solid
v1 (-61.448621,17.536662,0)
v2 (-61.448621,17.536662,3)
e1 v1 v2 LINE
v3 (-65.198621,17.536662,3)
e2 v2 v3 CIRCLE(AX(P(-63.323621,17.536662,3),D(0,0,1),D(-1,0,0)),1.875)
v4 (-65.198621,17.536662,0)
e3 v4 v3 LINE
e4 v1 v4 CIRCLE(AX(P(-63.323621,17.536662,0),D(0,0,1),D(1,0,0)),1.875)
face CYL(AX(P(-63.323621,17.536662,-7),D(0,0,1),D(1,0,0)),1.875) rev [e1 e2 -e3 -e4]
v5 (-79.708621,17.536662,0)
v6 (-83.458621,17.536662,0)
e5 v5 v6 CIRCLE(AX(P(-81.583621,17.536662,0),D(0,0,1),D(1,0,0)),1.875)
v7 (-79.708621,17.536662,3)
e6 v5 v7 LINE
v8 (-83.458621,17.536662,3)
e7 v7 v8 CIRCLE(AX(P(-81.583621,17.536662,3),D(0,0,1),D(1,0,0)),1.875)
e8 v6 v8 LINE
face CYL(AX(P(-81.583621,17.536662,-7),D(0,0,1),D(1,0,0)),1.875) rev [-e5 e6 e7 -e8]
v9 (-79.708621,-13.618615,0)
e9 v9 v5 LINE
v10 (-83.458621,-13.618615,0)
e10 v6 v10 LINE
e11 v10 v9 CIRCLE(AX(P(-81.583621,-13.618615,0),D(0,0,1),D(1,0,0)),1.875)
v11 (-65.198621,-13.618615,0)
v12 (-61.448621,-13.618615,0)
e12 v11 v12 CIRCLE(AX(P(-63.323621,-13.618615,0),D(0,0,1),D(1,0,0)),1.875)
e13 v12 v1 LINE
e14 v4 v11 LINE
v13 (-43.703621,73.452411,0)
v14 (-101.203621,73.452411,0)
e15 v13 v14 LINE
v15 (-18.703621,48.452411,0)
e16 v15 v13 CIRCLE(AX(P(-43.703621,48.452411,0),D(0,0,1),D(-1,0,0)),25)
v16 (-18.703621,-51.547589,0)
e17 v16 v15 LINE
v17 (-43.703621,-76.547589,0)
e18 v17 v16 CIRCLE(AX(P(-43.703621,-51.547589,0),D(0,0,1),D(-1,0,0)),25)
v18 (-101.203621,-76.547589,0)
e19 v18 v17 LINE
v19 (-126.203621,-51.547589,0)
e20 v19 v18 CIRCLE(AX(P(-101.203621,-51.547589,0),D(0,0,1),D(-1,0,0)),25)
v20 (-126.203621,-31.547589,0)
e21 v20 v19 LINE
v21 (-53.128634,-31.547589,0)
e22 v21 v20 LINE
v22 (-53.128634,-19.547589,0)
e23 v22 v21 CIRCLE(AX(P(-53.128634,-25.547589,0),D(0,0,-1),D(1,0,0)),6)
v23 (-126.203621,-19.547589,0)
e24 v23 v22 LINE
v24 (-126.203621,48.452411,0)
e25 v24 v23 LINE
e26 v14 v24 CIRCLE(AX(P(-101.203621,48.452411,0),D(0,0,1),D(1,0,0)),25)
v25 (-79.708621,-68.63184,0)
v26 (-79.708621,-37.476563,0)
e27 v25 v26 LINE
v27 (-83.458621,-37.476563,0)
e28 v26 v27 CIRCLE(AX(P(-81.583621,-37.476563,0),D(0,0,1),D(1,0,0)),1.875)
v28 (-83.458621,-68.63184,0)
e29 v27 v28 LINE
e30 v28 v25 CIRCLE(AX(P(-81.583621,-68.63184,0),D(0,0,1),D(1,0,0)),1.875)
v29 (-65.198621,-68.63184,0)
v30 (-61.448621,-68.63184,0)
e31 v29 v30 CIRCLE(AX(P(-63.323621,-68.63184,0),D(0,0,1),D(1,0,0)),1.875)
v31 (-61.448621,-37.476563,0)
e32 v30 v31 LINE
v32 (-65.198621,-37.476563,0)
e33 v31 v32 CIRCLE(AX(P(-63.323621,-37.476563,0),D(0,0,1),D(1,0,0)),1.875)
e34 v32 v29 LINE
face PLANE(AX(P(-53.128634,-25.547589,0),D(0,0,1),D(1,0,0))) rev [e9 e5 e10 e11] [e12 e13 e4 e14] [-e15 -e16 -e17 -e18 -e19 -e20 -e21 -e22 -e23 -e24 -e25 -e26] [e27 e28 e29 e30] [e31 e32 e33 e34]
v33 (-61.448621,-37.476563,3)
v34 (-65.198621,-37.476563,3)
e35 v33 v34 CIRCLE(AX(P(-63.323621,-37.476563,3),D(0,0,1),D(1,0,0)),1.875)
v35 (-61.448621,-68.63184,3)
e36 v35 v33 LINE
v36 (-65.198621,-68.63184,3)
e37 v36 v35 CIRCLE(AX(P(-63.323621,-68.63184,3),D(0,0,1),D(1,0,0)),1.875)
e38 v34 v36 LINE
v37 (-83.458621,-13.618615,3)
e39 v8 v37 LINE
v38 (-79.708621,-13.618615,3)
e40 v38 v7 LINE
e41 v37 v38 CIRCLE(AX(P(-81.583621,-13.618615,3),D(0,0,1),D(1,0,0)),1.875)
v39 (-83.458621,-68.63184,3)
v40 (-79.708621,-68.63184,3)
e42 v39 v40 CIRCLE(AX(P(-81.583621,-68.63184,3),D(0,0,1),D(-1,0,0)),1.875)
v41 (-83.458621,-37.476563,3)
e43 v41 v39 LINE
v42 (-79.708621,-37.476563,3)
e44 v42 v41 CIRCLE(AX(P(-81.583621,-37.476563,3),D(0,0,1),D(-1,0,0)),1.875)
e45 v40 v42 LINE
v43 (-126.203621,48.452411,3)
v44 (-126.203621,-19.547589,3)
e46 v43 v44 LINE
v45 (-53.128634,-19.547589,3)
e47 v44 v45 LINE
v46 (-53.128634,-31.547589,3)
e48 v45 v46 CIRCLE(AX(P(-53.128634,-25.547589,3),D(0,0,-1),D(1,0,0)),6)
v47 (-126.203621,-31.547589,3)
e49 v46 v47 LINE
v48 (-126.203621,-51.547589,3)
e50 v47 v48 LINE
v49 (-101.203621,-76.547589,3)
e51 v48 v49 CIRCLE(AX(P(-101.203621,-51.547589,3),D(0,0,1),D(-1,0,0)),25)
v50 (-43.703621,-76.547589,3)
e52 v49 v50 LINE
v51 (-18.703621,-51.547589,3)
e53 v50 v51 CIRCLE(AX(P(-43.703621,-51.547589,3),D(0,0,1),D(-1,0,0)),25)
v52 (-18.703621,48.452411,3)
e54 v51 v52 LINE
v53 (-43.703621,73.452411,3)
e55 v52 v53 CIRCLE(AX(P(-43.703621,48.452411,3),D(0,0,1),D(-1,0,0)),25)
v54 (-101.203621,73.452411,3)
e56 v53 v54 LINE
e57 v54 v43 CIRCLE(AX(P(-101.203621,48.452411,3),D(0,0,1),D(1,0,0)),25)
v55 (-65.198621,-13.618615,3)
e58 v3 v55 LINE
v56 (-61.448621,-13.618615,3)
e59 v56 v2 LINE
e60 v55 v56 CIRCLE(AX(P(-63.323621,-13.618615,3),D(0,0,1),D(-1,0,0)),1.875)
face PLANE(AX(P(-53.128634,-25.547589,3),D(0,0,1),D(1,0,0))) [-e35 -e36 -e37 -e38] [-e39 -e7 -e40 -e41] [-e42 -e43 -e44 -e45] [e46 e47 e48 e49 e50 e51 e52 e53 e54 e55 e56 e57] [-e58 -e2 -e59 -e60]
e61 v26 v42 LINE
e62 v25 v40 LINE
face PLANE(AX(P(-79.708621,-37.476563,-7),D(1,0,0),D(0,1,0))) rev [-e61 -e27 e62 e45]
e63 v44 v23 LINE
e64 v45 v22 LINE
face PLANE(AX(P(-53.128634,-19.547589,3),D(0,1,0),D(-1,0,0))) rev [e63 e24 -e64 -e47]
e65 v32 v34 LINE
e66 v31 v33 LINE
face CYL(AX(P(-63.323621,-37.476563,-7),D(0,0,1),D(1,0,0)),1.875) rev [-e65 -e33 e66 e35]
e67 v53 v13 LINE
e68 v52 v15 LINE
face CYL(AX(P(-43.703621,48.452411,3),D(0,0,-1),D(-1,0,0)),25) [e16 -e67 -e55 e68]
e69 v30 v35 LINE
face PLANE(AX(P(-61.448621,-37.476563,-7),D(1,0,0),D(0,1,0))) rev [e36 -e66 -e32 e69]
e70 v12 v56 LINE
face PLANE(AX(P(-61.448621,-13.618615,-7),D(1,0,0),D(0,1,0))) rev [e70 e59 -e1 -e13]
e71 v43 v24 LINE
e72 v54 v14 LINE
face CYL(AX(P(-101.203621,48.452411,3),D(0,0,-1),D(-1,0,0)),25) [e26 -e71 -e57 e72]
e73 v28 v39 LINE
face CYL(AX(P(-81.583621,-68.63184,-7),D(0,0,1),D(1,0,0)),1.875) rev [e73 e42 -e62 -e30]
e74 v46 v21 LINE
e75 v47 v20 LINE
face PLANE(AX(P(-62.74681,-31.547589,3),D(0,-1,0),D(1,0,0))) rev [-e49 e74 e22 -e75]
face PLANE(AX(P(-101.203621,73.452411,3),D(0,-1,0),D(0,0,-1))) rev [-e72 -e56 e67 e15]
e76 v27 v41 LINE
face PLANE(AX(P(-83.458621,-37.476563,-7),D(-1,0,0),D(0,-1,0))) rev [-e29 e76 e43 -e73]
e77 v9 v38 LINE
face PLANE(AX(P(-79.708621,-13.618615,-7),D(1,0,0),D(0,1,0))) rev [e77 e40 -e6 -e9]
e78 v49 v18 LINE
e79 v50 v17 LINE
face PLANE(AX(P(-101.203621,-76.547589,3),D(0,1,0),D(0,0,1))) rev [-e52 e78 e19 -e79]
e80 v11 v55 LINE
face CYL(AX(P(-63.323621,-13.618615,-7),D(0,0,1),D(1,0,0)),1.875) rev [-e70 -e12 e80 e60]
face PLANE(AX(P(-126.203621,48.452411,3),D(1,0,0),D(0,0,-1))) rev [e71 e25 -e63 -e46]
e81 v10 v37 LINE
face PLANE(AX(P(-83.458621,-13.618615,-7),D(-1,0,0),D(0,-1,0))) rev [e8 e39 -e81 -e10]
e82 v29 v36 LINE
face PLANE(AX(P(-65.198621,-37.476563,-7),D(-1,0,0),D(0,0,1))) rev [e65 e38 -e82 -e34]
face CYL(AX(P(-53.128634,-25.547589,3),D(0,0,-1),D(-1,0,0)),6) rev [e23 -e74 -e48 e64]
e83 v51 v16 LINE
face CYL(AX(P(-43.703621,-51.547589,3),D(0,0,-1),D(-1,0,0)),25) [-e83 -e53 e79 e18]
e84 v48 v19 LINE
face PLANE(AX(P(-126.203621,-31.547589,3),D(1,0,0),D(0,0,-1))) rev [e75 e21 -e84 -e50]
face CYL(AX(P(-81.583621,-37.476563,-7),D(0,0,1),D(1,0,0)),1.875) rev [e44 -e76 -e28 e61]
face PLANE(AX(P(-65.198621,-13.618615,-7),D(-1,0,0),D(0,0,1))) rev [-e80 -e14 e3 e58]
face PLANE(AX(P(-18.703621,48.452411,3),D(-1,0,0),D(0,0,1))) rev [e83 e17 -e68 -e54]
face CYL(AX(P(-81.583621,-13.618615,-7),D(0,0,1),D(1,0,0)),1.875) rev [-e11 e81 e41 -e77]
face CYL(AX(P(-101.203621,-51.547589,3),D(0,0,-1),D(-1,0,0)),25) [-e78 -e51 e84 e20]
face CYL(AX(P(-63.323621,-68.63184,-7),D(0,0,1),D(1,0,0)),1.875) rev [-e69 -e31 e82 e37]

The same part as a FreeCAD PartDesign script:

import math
import FreeCAD as App
import Part
import Sketcher
from FreeCAD import Vector
Q = App.Units.Quantity

doc = App.newDocument("Part")
body = doc.addObject("PartDesign::Body", "Body")

# Sketch on XY plane
sketch1 = doc.addObject("Sketcher::SketchObject", "Sketch")
body.addObject(sketch1)
sketch1.AttachmentSupport = (doc.XY_Plane, [""])
sketch1.MapMode = "FlatFace"
sketch1.addGeometry([
    Part.LineSegment(Vector(-126, -20, 0), Vector(-53, -20, 0)),  # 0
    Part.ArcOfCircle(Part.Circle(Vector(-53, -26, 0), Vector(0, 0, 1), 6), math.radians(-90), math.radians(90)),  # 1
    Part.LineSegment(Vector(-53, -32, 0), Vector(-126, -32, 0)),  # 2
    Part.LineSegment(Vector(-126, -32, 0), Vector(-126, -52, 0)),  # 3
    Part.ArcOfCircle(Part.Circle(Vector(-101, -52, 0), Vector(0, 0, 1), 25), math.radians(-180), math.radians(-90)),  # 4
    Part.LineSegment(Vector(-101, -77, 0), Vector(-44, -77, 0)),  # 5
    Part.ArcOfCircle(Part.Circle(Vector(-44, -52, 0), Vector(0, 0, 1), 25), math.radians(-90), math.radians(0)),  # 6
    Part.LineSegment(Vector(-19, -52, 0), Vector(-19, 48, 0)),  # 7
    Part.ArcOfCircle(Part.Circle(Vector(-44, 48, 0), Vector(0, 0, 1), 25), math.radians(0), math.radians(90)),  # 8
    Part.LineSegment(Vector(-44, 73, 0), Vector(-101, 73, 0)),  # 9
    Part.ArcOfCircle(Part.Circle(Vector(-101, 48, 0), Vector(0, 0, 1), 25), math.radians(90), math.radians(180)),  # 10
    Part.LineSegment(Vector(-126, 48, 0), Vector(-126, -20, 0)),  # 11
], False)
sketch1.addConstraint([
    Sketcher.Constraint("Tangent", 0, 2, 1, 2),
    Sketcher.Constraint("Tangent", 1, 1, 2, 1),
    Sketcher.Constraint("Coincident", 2, 2, 3, 1),
    Sketcher.Constraint("Tangent", 3, 2, 4, 1),
    Sketcher.Constraint("Tangent", 4, 2, 5, 1),
    Sketcher.Constraint("Tangent", 5, 2, 6, 1),
    Sketcher.Constraint("Tangent", 6, 2, 7, 1),
    Sketcher.Constraint("Tangent", 7, 2, 8, 1),
    Sketcher.Constraint("Tangent", 8, 2, 9, 1),
    Sketcher.Constraint("Tangent", 9, 2, 10, 1),
    Sketcher.Constraint("Tangent", 10, 2, 11, 1),
    Sketcher.Constraint("Coincident", 11, 2, 0, 1),
    Sketcher.Constraint("Horizontal", 0),
    Sketcher.Constraint("Horizontal", 2),
    Sketcher.Constraint("Vertical", 3),
    Sketcher.Constraint("Horizontal", 5),
    Sketcher.Constraint("Vertical", 7),
    Sketcher.Constraint("Horizontal", 9),
    Sketcher.Constraint("Vertical", 11),
    Sketcher.Constraint("Equal", 4, 6),
    Sketcher.Constraint("Equal", 6, 8),
    Sketcher.Constraint("Equal", 8, 10),
    Sketcher.Constraint("Vertical", 4, 3, 10, 3),
    Sketcher.Constraint("Radius", 1, Q("6 mm")),
    Sketcher.Constraint("Radius", 4, Q("25 mm")),
    Sketcher.Constraint("DistanceY", 3, 2, 3, 1, Q("20 mm")),
    Sketcher.Constraint("DistanceY", 7, 1, 7, 2, Q("100 mm")),
    Sketcher.Constraint("DistanceX", 5, 1, 5, 2, Q("57.5 mm")),
    Sketcher.Constraint("DistanceX", 0, 1, 0, 2, Q("73.074987 mm")),
    Sketcher.Constraint("DistanceY", 1, 3, -1, 1, Q("25.547589 mm")),
    Sketcher.Constraint("DistanceX", 4, 3, -1, 1, Q("101.203621 mm")),
])
pad1 = doc.addObject("PartDesign::Pad", "Pad")
body.addObject(pad1)
pad1.Profile = sketch1
pad1.Length = 3

# Sketch on XY plane
sketch2 = doc.addObject("Sketcher::SketchObject", "Sketch001")
body.addObject(sketch2)
sketch2.AttachmentSupport = (doc.XY_Plane, [""])
sketch2.MapMode = "FlatFace"
sketch2.AttachmentOffset = App.Placement(Vector(0, 0, 3), App.Rotation())
sketch2.addGeometry([
    Part.LineSegment(Vector(-61.4, -68.6, 0), Vector(-61.4, -37.5, 0)),  # 0
    Part.ArcOfCircle(Part.Circle(Vector(-63.3, -37.5, 0), Vector(0, 0, 1), 1.9), math.radians(0), math.radians(180)),  # 1
    Part.LineSegment(Vector(-65.2, -37.5, 0), Vector(-65.2, -68.6, 0)),  # 2
    Part.ArcOfCircle(Part.Circle(Vector(-63.3, -68.6, 0), Vector(0, 0, 1), 1.9), math.radians(180), math.radians(360)),  # 3
    Part.LineSegment(Vector(-83.5, -37.5, 0), Vector(-83.5, -68.6, 0)),  # 4
    Part.ArcOfCircle(Part.Circle(Vector(-81.6, -68.6, 0), Vector(0, 0, 1), 1.9), math.radians(180), math.radians(360)),  # 5
    Part.LineSegment(Vector(-79.7, -68.6, 0), Vector(-79.7, -37.5, 0)),  # 6
    Part.ArcOfCircle(Part.Circle(Vector(-81.6, -37.5, 0), Vector(0, 0, 1), 1.9), math.radians(0), math.radians(180)),  # 7
    Part.LineSegment(Vector(-83.5, 17.5, 0), Vector(-83.5, -13.6, 0)),  # 8
    Part.ArcOfCircle(Part.Circle(Vector(-81.6, -13.6, 0), Vector(0, 0, 1), 1.9), math.radians(180), math.radians(360)),  # 9
    Part.LineSegment(Vector(-79.7, -13.6, 0), Vector(-79.7, 17.5, 0)),  # 10
    Part.ArcOfCircle(Part.Circle(Vector(-81.6, 17.5, 0), Vector(0, 0, 1), 1.9), math.radians(0), math.radians(180)),  # 11
    Part.LineSegment(Vector(-61.4, -13.6, 0), Vector(-61.4, 17.5, 0)),  # 12
    Part.ArcOfCircle(Part.Circle(Vector(-63.3, 17.5, 0), Vector(0, 0, 1), 1.9), math.radians(0), math.radians(180)),  # 13
    Part.LineSegment(Vector(-65.2, 17.5, 0), Vector(-65.2, -13.6, 0)),  # 14
    Part.ArcOfCircle(Part.Circle(Vector(-63.3, -13.6, 0), Vector(0, 0, 1), 1.9), math.radians(180), math.radians(360)),  # 15
], False)
sketch2.addConstraint([
    Sketcher.Constraint("Tangent", 0, 2, 1, 1),
    Sketcher.Constraint("Tangent", 1, 2, 2, 1),
    Sketcher.Constraint("Tangent", 2, 2, 3, 1),
    Sketcher.Constraint("Tangent", 3, 2, 0, 1),
    Sketcher.Constraint("Tangent", 4, 2, 5, 1),
    Sketcher.Constraint("Tangent", 5, 2, 6, 1),
    Sketcher.Constraint("Tangent", 6, 2, 7, 1),
    Sketcher.Constraint("Tangent", 7, 2, 4, 1),
    Sketcher.Constraint("Tangent", 8, 2, 9, 1),
    Sketcher.Constraint("Tangent", 9, 2, 10, 1),
    Sketcher.Constraint("Tangent", 10, 2, 11, 1),
    Sketcher.Constraint("Tangent", 11, 2, 8, 1),
    Sketcher.Constraint("Tangent", 12, 2, 13, 1),
    Sketcher.Constraint("Tangent", 13, 2, 14, 1),
    Sketcher.Constraint("Tangent", 14, 2, 15, 1),
    Sketcher.Constraint("Tangent", 15, 2, 12, 1),
    Sketcher.Constraint("Vertical", 0),
    Sketcher.Constraint("Vertical", 2),
    Sketcher.Constraint("Vertical", 4),
    Sketcher.Constraint("Vertical", 6),
    Sketcher.Constraint("Vertical", 8),
    Sketcher.Constraint("Vertical", 10),
    Sketcher.Constraint("Vertical", 12),
    Sketcher.Constraint("Vertical", 14),
    Sketcher.Constraint("Equal", 3, 5),
    Sketcher.Constraint("Equal", 7, 9),
    Sketcher.Constraint("Equal", 11, 13),
    Sketcher.Constraint("Horizontal", 3, 3, 5, 3),
    Sketcher.Constraint("Horizontal", 1, 3, 7, 3),
    Sketcher.Constraint("Horizontal", 11, 3, 13, 3),
    Sketcher.Constraint("Horizontal", 9, 3, 15, 3),
    Sketcher.Constraint("Vertical", 7, 3, 9, 3),
    Sketcher.Constraint("Vertical", 3, 3, 13, 3),
    Sketcher.Constraint("Equal", 6, 8),
    Sketcher.Constraint("Radius", 1, Q("1.875 mm")),
    Sketcher.Constraint("DistanceX", 5, 3, 3, 3, Q("18.26 mm")),
    Sketcher.Constraint("DistanceY", 5, 3, 11, 3, Q("86.168502 mm")),
    Sketcher.Constraint("DistanceY", 0, 1, 0, 2, Q("31.155277 mm")),
    Sketcher.Constraint("DistanceX", 1, 3, -1, 1, Q("63.323621 mm")),
    Sketcher.Constraint("DistanceY", 3, 3, -1, 1, Q("68.63184 mm")),
])
pocket1 = doc.addObject("PartDesign::Pocket", "Pocket")
body.addObject(pocket1)
pocket1.Profile = sketch2
pocket1.Length = 10

doc.recompute()
